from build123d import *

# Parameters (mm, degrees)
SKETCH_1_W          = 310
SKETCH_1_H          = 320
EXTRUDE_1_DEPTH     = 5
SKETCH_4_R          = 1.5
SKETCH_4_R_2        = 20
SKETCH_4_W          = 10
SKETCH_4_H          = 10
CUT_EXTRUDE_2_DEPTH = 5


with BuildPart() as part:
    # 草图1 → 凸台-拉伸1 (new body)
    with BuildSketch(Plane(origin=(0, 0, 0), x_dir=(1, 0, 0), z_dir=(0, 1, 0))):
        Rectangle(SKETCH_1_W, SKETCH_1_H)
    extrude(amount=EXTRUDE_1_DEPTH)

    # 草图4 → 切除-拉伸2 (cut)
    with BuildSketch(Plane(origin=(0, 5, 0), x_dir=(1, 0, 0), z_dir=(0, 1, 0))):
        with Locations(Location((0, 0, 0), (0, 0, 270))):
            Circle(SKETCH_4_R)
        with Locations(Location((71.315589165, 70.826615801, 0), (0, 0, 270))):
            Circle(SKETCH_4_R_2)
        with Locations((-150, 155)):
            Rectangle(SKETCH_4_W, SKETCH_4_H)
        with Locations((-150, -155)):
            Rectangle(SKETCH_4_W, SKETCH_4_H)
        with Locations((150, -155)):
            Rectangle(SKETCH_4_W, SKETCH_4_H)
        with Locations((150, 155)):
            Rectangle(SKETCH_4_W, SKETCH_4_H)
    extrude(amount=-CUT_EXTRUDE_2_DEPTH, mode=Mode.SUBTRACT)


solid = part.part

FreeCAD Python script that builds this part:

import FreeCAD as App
import Part
import Sketcher
from FreeCAD import Vector
Q = App.Units.Quantity

doc = App.newDocument("Part")
body = doc.addObject("PartDesign::Body", "Body")

# Sketch on XZ plane
sketch1 = body.newObject("Sketcher::SketchObject", "Sketch")
sketch1.AttachmentSupport = (doc.getObject("XZ_Plane"), [""])
sketch1.MapMode = "FlatFace"
sketch1.addGeometry([
    Part.LineSegment(Vector(-155, -160, 0), Vector(-155, 160, 0)),
    Part.LineSegment(Vector(-155, 160, 0), Vector(155, 160, 0)),
    Part.LineSegment(Vector(155, 160, 0), Vector(155, -160, 0)),
    Part.LineSegment(Vector(155, -160, 0), Vector(-155, -160, 0)),
], False)
sketch1.addConstraint([
    Sketcher.Constraint("Coincident", 0, 2, 1, 1),
    Sketcher.Constraint("Coincident", 1, 2, 2, 1),
    Sketcher.Constraint("Coincident", 2, 2, 3, 1),
    Sketcher.Constraint("Coincident", 3, 2, 0, 1),
    Sketcher.Constraint("Vertical", 0),
    Sketcher.Constraint("Horizontal", 1),
    Sketcher.Constraint("Vertical", 2),
    Sketcher.Constraint("Horizontal", 3),
    Sketcher.Constraint("Symmetric", 0, 2, 2, 2, -1, 1),
    Sketcher.Constraint("DistanceX", 1, 1, 1, 2, Q("310 mm")),
    Sketcher.Constraint("DistanceY", 0, 1, 0, 2, Q("320 mm")),
])
pad1 = body.newObject("PartDesign::Pad", "Pad")
pad1.Profile = sketch1
pad1.Length = 5
pad1.Reversed = True

# Sketch on XZ plane
sketch2 = body.newObject("Sketcher::SketchObject", "Sketch001")
sketch2.AttachmentSupport = (doc.getObject("XZ_Plane"), [""])
sketch2.MapMode = "FlatFace"
sketch2.AttachmentOffset = App.Placement(Vector(0, 0, -5), App.Rotation())
sketch2.addGeometry([
    Part.Circle(Vector(0, 0, 0), Vector(0, 0, 1), 1.5),  # 0
    Part.Circle(Vector(71.315589, -70.826616, 0), Vector(0, 0, 1), 20),  # 1
    Part.LineSegment(Vector(-155, -160, 0), Vector(-155, -150, 0)),  # 2
    Part.LineSegment(Vector(-155, -150, 0), Vector(-145, -150, 0)),  # 3
    Part.LineSegment(Vector(-145, -150, 0), Vector(-145, -160, 0)),  # 4
    Part.LineSegment(Vector(-145, -160, 0), Vector(-155, -160, 0)),  # 5
    Part.LineSegment(Vector(-155, 150, 0), Vector(-155, 160, 0)),  # 6
    Part.LineSegment(Vector(-155, 160, 0), Vector(-145, 160, 0)),  # 7
    Part.LineSegment(Vector(-145, 160, 0), Vector(-145, 150, 0)),  # 8
    Part.LineSegment(Vector(-145, 150, 0), Vector(-155, 150, 0)),  # 9
    Part.LineSegment(Vector(145, 150, 0), Vector(145, 160, 0)),  # 10
    Part.LineSegment(Vector(145, 160, 0), Vector(155, 160, 0)),  # 11
    Part.LineSegment(Vector(155, 160, 0), Vector(155, 150, 0)),  # 12
    Part.LineSegment(Vector(155, 150, 0), Vector(145, 150, 0)),  # 13
    Part.LineSegment(Vector(145, -160, 0), Vector(145, -150, 0)),  # 14
    Part.LineSegment(Vector(145, -150, 0), Vector(155, -150, 0)),  # 15
    Part.LineSegment(Vector(155, -150, 0), Vector(155, -160, 0)),  # 16
    Part.LineSegment(Vector(155, -160, 0), Vector(145, -160, 0)),  # 17
], False)
sketch2.addConstraint([
    Sketcher.Constraint("Coincident", 2, 2, 3, 1),
    Sketcher.Constraint("Coincident", 3, 2, 4, 1),
    Sketcher.Constraint("Coincident", 4, 2, 5, 1),
    Sketcher.Constraint("Coincident", 5, 2, 2, 1),
    Sketcher.Constraint("Coincident", 6, 2, 7, 1),
    Sketcher.Constraint("Coincident", 7, 2, 8, 1),
    Sketcher.Constraint("Coincident", 8, 2, 9, 1),
    Sketcher.Constraint("Coincident", 9, 2, 6, 1),
    Sketcher.Constraint("Coincident", 10, 2, 11, 1),
    Sketcher.Constraint("Coincident", 11, 2, 12, 1),
    Sketcher.Constraint("Coincident", 12, 2, 13, 1),
    Sketcher.Constraint("Coincident", 13, 2, 10, 1),
    Sketcher.Constraint("Coincident", 14, 2, 15, 1),
    Sketcher.Constraint("Coincident", 15, 2, 16, 1),
    Sketcher.Constraint("Coincident", 16, 2, 17, 1),
    Sketcher.Constraint("Coincident", 17, 2, 14, 1),
    Sketcher.Constraint("Vertical", 2),
    Sketcher.Constraint("Horizontal", 3),
    Sketcher.Constraint("Vertical", 4),
    Sketcher.Constraint("Horizontal", 5),
    Sketcher.Constraint("Vertical", 6),
    Sketcher.Constraint("Horizontal", 7),
    Sketcher.Constraint("Vertical", 8),
    Sketcher.Constraint("Horizontal", 9),
    Sketcher.Constraint("Vertical", 10),
    Sketcher.Constraint("Horizontal", 11),
    Sketcher.Constraint("Vertical", 12),
    Sketcher.Constraint("Horizontal", 13),
    Sketcher.Constraint("Vertical", 14),
    Sketcher.Constraint("Horizontal", 15),
    Sketcher.Constraint("Vertical", 16),
    Sketcher.Constraint("Horizontal", 17),
    Sketcher.Constraint("Coincident", 0, 3, -1, 1),
    Sketcher.Constraint("Symmetric", 4, 2, 10, 2, -1, 1),
    Sketcher.Constraint("Symmetric", 2, 2, 12, 2, -1, 1),
    Sketcher.Constraint("Symmetric", 8, 2, 14, 2, -1, 1),
    Sketcher.Constraint("Symmetric", 6, 2, 16, 2, -1, 1),
    Sketcher.Constraint("Symmetric", 7, 2, 10, 2, -2),
    Sketcher.Constraint("Symmetric", 9, 2, 12, 2, -2),
    Sketcher.Constraint("Equal", 17, 2),
    Sketcher.Constraint("Diameter", 0, Q("3 mm")),
    Sketcher.Constraint("Diameter", 1, Q("40 mm")),
    Sketcher.Constraint("DistanceX", 3, 1, 3, 2, Q("10 mm")),
    Sketcher.Constraint("DistanceX", 2, 2, -1, 1, Q("155 mm")),
    Sketcher.Constraint("DistanceY", 2, 2, -1, 1, Q("150 mm")),
    Sketcher.Constraint("DistanceX", -1, 1, 1, 3, Q("71.315589 mm")),
    Sketcher.Constraint("DistanceY", 1, 3, -1, 1, Q("70.826616 mm")),
])
pocket1 = body.newObject("PartDesign::Pocket", "Pocket")
pocket1.Profile = sketch2
pocket1.Length = 5
pocket1.Reversed = True

doc.recompute()
